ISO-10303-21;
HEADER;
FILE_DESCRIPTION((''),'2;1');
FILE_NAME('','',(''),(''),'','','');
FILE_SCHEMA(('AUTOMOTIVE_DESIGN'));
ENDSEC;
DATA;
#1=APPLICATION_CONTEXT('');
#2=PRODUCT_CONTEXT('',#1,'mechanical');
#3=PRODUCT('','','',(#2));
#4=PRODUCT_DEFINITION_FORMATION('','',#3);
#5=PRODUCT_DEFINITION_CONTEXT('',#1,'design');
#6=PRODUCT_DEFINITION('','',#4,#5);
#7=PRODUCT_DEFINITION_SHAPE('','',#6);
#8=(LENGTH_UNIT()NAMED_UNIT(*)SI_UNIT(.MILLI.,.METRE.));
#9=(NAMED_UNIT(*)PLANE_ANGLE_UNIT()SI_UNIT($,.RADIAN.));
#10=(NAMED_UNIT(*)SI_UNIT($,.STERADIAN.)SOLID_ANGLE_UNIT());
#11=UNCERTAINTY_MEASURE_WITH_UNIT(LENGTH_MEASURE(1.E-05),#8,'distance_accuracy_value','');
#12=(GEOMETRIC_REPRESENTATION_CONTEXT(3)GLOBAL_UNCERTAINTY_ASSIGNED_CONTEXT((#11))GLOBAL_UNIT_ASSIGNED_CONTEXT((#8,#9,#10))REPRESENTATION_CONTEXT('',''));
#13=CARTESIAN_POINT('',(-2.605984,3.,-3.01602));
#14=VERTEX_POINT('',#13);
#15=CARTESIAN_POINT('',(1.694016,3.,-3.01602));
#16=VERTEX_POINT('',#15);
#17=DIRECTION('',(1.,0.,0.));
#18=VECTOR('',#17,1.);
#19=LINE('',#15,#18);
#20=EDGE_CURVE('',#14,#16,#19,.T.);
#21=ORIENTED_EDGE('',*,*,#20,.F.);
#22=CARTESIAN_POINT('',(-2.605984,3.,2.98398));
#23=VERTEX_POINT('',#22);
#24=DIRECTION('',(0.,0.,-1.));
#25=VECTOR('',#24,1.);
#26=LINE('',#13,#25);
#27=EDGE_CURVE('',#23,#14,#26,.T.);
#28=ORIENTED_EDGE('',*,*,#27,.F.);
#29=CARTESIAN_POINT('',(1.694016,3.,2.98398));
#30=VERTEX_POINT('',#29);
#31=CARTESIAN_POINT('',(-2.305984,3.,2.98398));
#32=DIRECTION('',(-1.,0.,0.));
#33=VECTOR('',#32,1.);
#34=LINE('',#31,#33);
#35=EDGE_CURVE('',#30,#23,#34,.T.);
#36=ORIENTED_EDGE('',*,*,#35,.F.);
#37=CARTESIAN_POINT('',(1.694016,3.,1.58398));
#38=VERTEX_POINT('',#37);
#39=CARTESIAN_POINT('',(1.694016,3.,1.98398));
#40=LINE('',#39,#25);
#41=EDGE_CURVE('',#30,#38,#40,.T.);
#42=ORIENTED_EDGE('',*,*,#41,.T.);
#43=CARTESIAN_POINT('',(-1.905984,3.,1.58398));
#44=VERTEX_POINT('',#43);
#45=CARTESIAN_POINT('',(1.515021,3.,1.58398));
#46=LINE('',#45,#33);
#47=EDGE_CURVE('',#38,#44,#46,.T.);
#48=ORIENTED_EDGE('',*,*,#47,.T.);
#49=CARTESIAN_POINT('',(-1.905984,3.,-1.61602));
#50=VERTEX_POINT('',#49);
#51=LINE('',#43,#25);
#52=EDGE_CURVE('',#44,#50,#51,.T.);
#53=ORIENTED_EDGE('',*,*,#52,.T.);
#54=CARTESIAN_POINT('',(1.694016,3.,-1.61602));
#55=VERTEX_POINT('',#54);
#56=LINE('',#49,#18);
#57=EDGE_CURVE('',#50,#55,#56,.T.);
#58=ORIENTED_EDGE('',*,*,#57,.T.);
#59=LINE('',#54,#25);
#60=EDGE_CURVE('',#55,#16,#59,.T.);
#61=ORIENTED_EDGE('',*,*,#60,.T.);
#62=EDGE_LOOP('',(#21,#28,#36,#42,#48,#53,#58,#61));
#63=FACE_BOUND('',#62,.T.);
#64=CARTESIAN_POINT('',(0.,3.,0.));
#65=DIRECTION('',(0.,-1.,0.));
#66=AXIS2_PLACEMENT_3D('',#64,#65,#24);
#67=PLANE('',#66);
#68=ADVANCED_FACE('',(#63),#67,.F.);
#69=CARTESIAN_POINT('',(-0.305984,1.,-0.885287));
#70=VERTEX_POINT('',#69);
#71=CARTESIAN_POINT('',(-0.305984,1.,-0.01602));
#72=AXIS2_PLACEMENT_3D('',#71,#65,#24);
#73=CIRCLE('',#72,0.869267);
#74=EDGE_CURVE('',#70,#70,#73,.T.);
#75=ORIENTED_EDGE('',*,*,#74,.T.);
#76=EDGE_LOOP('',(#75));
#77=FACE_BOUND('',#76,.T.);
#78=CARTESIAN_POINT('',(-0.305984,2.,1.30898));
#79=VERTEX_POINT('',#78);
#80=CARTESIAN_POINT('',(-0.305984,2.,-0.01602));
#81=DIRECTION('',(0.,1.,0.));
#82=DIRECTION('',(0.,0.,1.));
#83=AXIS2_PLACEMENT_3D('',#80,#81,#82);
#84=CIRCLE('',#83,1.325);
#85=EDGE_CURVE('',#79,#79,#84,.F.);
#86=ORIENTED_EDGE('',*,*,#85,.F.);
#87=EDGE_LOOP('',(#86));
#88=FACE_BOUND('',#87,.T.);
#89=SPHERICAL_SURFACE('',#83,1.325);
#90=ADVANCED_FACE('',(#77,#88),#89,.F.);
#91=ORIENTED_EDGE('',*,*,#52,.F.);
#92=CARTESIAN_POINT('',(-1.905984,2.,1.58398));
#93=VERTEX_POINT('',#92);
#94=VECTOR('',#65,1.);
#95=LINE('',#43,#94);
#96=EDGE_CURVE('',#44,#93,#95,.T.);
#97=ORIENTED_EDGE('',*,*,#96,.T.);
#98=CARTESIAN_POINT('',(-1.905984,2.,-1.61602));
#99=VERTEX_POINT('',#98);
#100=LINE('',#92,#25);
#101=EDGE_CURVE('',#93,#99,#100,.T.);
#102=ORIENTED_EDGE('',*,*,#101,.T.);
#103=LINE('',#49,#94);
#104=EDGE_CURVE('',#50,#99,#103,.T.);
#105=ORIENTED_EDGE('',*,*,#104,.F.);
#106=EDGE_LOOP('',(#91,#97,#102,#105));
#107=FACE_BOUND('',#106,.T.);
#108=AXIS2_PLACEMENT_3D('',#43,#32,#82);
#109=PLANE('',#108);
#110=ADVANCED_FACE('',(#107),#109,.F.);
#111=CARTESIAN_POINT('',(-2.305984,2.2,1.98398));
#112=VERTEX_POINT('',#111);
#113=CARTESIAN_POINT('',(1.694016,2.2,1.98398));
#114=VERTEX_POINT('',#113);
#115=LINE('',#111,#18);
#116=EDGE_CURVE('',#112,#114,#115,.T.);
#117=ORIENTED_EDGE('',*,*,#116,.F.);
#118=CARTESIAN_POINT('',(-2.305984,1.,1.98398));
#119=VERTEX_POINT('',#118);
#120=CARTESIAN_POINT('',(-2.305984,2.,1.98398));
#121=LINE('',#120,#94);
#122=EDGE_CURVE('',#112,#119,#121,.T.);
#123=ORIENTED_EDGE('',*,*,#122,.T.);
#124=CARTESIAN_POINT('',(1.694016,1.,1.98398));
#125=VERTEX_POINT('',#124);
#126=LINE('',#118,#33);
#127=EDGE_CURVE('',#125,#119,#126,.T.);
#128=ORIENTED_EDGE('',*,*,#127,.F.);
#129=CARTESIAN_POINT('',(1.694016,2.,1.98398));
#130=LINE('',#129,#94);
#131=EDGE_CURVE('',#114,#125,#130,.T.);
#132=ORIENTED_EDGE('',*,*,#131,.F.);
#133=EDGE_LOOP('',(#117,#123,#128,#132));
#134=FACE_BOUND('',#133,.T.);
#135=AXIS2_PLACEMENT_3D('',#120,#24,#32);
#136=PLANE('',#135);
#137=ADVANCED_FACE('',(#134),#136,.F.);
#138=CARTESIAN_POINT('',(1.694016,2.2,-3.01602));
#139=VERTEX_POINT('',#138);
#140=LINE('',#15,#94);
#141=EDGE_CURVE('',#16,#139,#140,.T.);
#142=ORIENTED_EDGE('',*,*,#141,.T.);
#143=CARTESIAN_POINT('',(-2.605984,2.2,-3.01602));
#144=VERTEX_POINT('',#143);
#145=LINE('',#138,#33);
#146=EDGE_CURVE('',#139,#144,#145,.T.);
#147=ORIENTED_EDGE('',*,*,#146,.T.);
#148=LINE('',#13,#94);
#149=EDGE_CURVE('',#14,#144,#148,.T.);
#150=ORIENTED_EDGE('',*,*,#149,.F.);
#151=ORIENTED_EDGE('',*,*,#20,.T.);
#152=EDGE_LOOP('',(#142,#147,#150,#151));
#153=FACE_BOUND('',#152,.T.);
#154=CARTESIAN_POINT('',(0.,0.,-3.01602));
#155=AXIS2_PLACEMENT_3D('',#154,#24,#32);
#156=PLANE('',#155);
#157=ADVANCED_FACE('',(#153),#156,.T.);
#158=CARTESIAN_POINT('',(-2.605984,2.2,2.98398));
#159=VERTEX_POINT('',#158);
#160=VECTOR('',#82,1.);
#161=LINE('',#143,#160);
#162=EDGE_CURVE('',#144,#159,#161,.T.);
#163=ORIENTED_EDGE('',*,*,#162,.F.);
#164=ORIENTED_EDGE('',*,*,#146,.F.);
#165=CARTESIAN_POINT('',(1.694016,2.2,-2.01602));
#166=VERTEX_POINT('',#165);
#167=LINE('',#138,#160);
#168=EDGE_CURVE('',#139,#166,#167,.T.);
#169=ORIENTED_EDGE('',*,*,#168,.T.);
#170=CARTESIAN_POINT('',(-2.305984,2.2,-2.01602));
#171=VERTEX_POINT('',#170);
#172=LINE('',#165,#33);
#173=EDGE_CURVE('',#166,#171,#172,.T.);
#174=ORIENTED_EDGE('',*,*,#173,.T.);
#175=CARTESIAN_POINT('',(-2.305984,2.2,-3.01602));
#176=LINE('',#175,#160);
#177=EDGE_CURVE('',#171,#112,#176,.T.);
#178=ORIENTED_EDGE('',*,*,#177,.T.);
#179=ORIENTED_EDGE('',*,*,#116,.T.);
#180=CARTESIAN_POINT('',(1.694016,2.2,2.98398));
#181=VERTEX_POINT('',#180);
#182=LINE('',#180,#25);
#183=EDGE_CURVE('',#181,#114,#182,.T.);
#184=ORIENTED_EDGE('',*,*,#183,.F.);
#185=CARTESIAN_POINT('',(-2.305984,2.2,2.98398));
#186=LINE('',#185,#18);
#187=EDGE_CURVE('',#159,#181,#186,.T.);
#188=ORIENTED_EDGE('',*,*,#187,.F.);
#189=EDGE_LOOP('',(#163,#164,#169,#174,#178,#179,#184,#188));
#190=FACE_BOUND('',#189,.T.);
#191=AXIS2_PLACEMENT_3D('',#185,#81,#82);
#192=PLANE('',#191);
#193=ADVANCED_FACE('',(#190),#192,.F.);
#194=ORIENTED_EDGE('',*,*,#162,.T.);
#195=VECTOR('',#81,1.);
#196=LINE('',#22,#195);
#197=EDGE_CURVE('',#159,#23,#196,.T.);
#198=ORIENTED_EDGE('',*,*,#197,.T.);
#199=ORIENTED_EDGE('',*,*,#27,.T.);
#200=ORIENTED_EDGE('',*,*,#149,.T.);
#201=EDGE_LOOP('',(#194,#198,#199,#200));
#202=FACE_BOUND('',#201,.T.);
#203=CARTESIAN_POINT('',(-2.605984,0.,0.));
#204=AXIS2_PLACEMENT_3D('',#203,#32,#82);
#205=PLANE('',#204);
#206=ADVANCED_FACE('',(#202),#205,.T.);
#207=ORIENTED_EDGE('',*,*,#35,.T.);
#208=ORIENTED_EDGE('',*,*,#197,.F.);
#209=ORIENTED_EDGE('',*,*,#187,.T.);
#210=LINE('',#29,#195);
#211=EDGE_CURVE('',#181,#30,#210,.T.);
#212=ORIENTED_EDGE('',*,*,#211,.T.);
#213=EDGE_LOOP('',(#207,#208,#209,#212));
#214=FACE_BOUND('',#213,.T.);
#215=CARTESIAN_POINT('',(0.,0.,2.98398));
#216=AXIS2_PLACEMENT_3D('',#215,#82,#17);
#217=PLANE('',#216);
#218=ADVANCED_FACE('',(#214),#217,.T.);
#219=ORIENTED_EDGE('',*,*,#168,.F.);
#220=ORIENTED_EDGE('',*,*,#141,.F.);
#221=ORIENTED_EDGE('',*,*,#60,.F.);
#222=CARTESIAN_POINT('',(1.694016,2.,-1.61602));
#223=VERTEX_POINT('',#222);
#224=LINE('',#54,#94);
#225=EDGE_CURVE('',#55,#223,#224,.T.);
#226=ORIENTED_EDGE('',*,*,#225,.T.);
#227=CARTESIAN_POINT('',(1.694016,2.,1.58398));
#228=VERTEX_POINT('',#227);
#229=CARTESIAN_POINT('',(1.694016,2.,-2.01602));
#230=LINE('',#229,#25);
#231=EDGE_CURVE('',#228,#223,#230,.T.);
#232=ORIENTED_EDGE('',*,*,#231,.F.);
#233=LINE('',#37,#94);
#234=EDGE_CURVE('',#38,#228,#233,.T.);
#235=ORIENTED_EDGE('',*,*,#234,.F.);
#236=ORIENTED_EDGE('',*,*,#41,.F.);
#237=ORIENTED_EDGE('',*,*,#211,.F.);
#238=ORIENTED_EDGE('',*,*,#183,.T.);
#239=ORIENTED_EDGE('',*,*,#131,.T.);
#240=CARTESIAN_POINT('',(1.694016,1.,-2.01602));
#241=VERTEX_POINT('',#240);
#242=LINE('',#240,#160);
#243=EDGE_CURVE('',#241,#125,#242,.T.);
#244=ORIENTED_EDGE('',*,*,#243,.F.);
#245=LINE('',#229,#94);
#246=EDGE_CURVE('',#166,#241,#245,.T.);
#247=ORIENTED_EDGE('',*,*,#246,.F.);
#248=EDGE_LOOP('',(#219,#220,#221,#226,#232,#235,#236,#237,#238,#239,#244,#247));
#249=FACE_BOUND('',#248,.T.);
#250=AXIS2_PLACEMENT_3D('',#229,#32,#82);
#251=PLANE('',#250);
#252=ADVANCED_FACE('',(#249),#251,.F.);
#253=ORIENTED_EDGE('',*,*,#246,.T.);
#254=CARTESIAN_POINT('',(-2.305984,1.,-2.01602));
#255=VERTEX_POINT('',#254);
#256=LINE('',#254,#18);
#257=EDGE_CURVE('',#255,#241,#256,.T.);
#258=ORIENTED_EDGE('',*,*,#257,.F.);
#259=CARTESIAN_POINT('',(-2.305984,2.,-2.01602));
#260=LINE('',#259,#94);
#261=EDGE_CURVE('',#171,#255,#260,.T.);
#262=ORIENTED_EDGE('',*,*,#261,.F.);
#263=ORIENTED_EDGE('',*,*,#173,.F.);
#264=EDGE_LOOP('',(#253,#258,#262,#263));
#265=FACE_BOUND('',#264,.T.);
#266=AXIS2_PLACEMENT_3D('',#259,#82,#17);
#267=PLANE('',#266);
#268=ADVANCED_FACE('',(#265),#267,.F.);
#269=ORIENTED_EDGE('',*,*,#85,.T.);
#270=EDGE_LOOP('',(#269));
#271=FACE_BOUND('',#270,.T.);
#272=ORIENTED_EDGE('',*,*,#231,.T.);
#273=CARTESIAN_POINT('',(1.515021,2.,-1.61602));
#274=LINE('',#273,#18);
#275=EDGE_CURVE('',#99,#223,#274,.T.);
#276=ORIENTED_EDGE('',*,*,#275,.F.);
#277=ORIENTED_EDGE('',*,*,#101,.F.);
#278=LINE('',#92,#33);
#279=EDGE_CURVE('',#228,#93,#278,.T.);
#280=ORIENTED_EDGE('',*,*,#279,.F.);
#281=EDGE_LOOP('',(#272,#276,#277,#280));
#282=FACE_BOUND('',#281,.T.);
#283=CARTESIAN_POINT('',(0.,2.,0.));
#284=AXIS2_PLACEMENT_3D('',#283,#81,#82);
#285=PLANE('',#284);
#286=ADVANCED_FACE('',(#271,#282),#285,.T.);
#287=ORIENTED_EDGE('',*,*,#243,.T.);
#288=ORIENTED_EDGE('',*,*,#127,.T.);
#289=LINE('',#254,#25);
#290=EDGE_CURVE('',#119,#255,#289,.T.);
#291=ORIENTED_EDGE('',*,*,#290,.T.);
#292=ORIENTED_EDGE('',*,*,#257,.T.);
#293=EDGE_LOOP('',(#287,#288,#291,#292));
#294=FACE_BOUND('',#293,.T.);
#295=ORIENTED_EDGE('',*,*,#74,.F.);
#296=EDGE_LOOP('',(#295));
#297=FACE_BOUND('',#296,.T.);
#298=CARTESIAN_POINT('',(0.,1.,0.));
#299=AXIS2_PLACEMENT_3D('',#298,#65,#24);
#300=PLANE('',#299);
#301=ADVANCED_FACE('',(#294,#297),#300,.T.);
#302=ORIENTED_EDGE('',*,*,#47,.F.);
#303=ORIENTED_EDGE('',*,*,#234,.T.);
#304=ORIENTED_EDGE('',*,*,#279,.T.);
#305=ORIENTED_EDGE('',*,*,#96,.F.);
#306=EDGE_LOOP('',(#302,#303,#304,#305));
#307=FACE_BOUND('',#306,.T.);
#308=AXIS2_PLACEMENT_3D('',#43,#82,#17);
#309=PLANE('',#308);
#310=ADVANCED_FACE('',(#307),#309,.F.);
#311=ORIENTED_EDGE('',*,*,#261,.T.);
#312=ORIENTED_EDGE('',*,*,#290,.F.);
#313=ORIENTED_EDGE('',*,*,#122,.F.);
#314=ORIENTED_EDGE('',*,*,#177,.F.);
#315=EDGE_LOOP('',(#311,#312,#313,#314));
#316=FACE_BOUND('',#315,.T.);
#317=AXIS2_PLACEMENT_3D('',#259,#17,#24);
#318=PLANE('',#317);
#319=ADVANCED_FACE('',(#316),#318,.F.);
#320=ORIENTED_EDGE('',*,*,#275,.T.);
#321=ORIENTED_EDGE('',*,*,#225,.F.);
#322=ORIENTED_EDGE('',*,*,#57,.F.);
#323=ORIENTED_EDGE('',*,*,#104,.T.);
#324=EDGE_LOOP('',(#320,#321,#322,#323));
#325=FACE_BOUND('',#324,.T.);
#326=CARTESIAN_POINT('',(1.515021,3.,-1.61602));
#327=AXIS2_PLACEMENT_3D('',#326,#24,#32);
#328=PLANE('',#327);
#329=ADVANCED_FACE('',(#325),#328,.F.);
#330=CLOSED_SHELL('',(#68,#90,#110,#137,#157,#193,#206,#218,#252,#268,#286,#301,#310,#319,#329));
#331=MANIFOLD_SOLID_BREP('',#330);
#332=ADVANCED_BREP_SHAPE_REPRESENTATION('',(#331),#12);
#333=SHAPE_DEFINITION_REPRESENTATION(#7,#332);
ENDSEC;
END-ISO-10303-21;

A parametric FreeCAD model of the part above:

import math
import FreeCAD as App
import Part
import Sketcher


def add_polygon(sketch, points):
    """Adds a closed chain of lines whose ends are joined by coincident constraints."""
    first, n = sketch.GeometryCount, len(points)
    for a, b in zip(points, points[1:] + points[:1]):
        sketch.addGeometry(Part.LineSegment(App.Vector(*a, 0), App.Vector(*b, 0)), False)
    for i in range(n):
        sketch.addConstraint(Sketcher.Constraint("Coincident", first + i, 2, first + (i + 1) % n, 1))

doc = App.newDocument("Part")
params = doc.addObject("Spreadsheet::Sheet", "Params")
for row, (alias, value) in enumerate([
    ("sketch1_width", "4 mm"),
    ("pad1_length", "2 mm"),
    ("groove_angle", "360 deg"),
    ("pocket1_length", "1 mm"),
    ("sketch4_width", "4 mm"),
    ("sketch4_width2", "3.6 mm"),
    ("sketch4_height", "3.2 mm"),
    ("pad2_length", "1 mm"),
    ("sketch5_width", "4 mm"),
    ("sketch5_height", "0.8 mm"),
    ("pad3_length", "1 mm"),
    ("sketch6_width", "4 mm"),
    ("sketch6_height", "0.8 mm"),
    ("pad4_length", "1 mm"),
    ("sketch7_height", "6 mm"),
    ("sketch7_width", "0.8 mm"),
    ("pad5_length", "0.3 mm"),
], start=1):
    params.set(f"A{row}", alias)
    params.set(f"B{row}", "=" + value)
    params.setAlias(f"B{row}", alias)

body = doc.addObject("PartDesign::Body", "Body")

# Sketch on XZ plane
sketch1 = body.newObject("Sketcher::SketchObject", "Sketch")
sketch1.AttachmentSupport = (doc.getObject("XZ_Plane"), [""])
sketch1.MapMode = "FlatFace"
add_polygon(sketch1, [(-2.3, -2), (-2.3, 2), (1.7, 2), (1.7, -2)])  # lines 0-3
sketch1.addConstraint(Sketcher.Constraint("Vertical", 0))
sketch1.addConstraint(Sketcher.Constraint("Horizontal", 1))
sketch1.addConstraint(Sketcher.Constraint("Vertical", 2))
sketch1.addConstraint(Sketcher.Constraint("Horizontal", 3))
sketch1.addConstraint(Sketcher.Constraint("Equal", 3, 0))
sketch1.addConstraint(Sketcher.Constraint("DistanceX", 1, 1, 1, 2, 4.0))
sketch1.addConstraint(Sketcher.Constraint("DistanceY", -1, 1, 0, 2, 1.98398))
sketch1.addConstraint(Sketcher.Constraint("DistanceX", 0, 2, -1, 1, 2.305984))
sketch1.setExpression("Constraints[9]", "Params.sketch1_width")
pad1 = body.newObject("PartDesign::Pad", "Pad")
pad1.Profile = sketch1
pad1.setExpression("Length", "Params.pad1_length")
pad1.Reversed = True

# Sketch on XZ plane
sketch2 = body.newObject("Sketcher::SketchObject", "Sketch001")
sketch2.AttachmentSupport = (doc.getObject("XZ_Plane"), [""])
sketch2.MapMode = "FlatFace"
sketch2.AttachmentOffset = App.Placement(App.Vector(0, 0, -2), App.Rotation())
sketch2.addGeometry(Part.LineSegment(App.Vector(-0.3, 1.3, 0), App.Vector(-0.3, -1.3, 0)), False)
sketch2.addGeometry(Part.ArcOfCircle(Part.Circle(App.Vector(-0.3, 0, 0), App.Vector(0, 0, 1), 1.3), math.radians(90), math.radians(270)), False)
sketch2.addGeometry(Part.LineSegment(App.Vector(-0.3, 1.3, 0), App.Vector(-0.3, -1.3, 0)), True)  # axis
sketch2.addConstraint(Sketcher.Constraint("Coincident", 0, 1, 1, 1))
sketch2.addConstraint(Sketcher.Constraint("Coincident", 1, 2, 0, 2))
sketch2.addConstraint(Sketcher.Constraint("Vertical", 0))
sketch2.addConstraint(Sketcher.Constraint("Vertical", 2))
sketch2.addConstraint(Sketcher.Constraint("Coincident", 2, 1, 0, 1))
sketch2.addConstraint(Sketcher.Constraint("Vertical", 1, 3, 0, 1))
sketch2.addConstraint(Sketcher.Constraint("Equal", 0, 2))
sketch2.addConstraint(Sketcher.Constraint("Radius", 1, 1.325))
sketch2.addConstraint(Sketcher.Constraint("DistanceY", 1, 3, -1, 1, 0.01602))
sketch2.addConstraint(Sketcher.Constraint("DistanceX", 1, 3, -1, 1, 0.305984))
groove = body.newObject("PartDesign::Groove", "Groove")
groove.Profile = sketch2
groove.ReferenceAxis = (sketch2, ["Axis0"])
groove.setExpression("Angle", "Params.groove_angle")

# Sketch on XZ plane
sketch3 = body.newObject("Sketcher::SketchObject", "Sketch002")
sketch3.AttachmentSupport = (doc.getObject("XZ_Plane"), [""])
sketch3.MapMode = "FlatFace"
add_polygon(sketch3, [(-4.7, 2.6), (-4.7, -2.2), (2.3, -2.2), (2.3, 2.6)])  # lines 0-3
sketch3.addConstraint(Sketcher.Constraint("Vertical", 0))
sketch3.addConstraint(Sketcher.Constraint("Horizontal", 1))
sketch3.addConstraint(Sketcher.Constraint("Vertical", 2))
sketch3.addConstraint(Sketcher.Constraint("Horizontal", 3))
sketch3.addConstraint(Sketcher.Constraint("DistanceX", 1, 1, 1, 2, 6.995739))
sketch3.addConstraint(Sketcher.Constraint("DistanceY", 0, 2, 0, 1, 4.795831))
sketch3.addConstraint(Sketcher.Constraint("DistanceY", 0, 2, -1, 1, 2.171708))
sketch3.addConstraint(Sketcher.Constraint("DistanceX", 0, 2, -1, 1, 4.717305))
pocket1 = body.newObject("PartDesign::Pocket", "Pocket")
pocket1.Profile = sketch3
pocket1.setExpression("Length", "Params.pocket1_length")

# Sketch on XZ plane
sketch4 = body.newObject("Sketcher::SketchObject", "Sketch003")
sketch4.AttachmentSupport = (doc.getObject("XZ_Plane"), [""])
sketch4.MapMode = "FlatFace"
sketch4.AttachmentOffset = App.Placement(App.Vector(0, 0, -2), App.Rotation())
add_polygon(sketch4, [(1.69, 1.58), (-1.91, 1.58), (-1.91, -1.62), (1.69, -1.62), (1.69, -2.02), (-2.31, -2.02), (-2.31, 1.98), (1.69, 1.98)])  # lines 0-7
sketch4.addConstraint(Sketcher.Constraint("Horizontal", 0))
sketch4.addConstraint(Sketcher.Constraint("Vertical", 1))
sketch4.addConstraint(Sketcher.Constraint("Horizontal", 2))
sketch4.addConstraint(Sketcher.Constraint("Vertical", 3))
sketch4.addConstraint(Sketcher.Constraint("Horizontal", 4))
sketch4.addConstraint(Sketcher.Constraint("Vertical", 5))
sketch4.addConstraint(Sketcher.Constraint("Horizontal", 6))
sketch4.addConstraint(Sketcher.Constraint("Vertical", 7))
sketch4.addConstraint(Sketcher.Constraint("Vertical", 3, 2, 6, 2))
sketch4.addConstraint(Sketcher.Constraint("Equal", 6, 5))
sketch4.addConstraint(Sketcher.Constraint("Equal", 3, 7))
sketch4.addConstraint(Sketcher.Constraint("DistanceX", 4, 2, 4, 1, 4.0))
sketch4.addConstraint(Sketcher.Constraint("DistanceX", 0, 2, 0, 1, 3.6))
sketch4.addConstraint(Sketcher.Constraint("DistanceY", 1, 2, 1, 1, 3.2))
sketch4.addConstraint(Sketcher.Constraint("DistanceY", -1, 1, 0, 2, 1.58398))
sketch4.addConstraint(Sketcher.Constraint("DistanceX", 0, 2, -1, 1, 1.905984))
sketch4.setExpression("Constraints[19]", "Params.sketch4_width")
sketch4.setExpression("Constraints[20]", "Params.sketch4_width2")
sketch4.setExpression("Constraints[21]", "Params.sketch4_height")
pad2 = body.newObject("PartDesign::Pad", "Pad001")
pad2.Profile = sketch4
pad2.setExpression("Length", "Params.pad2_length")
pad2.Reversed = True

# Sketch on XY plane
sketch5 = body.newObject("Sketcher::SketchObject", "Sketch004")
sketch5.AttachmentSupport = (doc.getObject("XY_Plane"), [""])
sketch5.MapMode = "FlatFace"
sketch5.AttachmentOffset = App.Placement(App.Vector(0, 0, 1.98398), App.Rotation())
add_polygon(sketch5, [(-2.3, 3), (-2.3, 2.2), (1.7, 2.2), (1.7, 3)])  # lines 0-3
sketch5.addConstraint(Sketcher.Constraint("Vertical", 0))
sketch5.addConstraint(Sketcher.Constraint("Horizontal", 1))
sketch5.addConstraint(Sketcher.Constraint("Vertical", 2))
sketch5.addConstraint(Sketcher.Constraint("Horizontal", 3))
sketch5.addConstraint(Sketcher.Constraint("DistanceX", 1, 1, 1, 2, 4.0))
sketch5.addConstraint(Sketcher.Constraint("DistanceY", 0, 2, 0, 1, 0.8))
sketch5.addConstraint(Sketcher.Constraint("DistanceY", -1, 1, 2, 2, 3.0))
sketch5.addConstraint(Sketcher.Constraint("DistanceX", 0, 2, -1, 1, 2.305984))
sketch5.setExpression("Constraints[8]", "Params.sketch5_width")
sketch5.setExpression("Constraints[9]", "Params.sketch5_height")
pad3 = body.newObject("PartDesign::Pad", "Pad002")
pad3.Profile = sketch5
pad3.setExpression("Length", "Params.pad3_length")

# Sketch on XY plane
sketch6 = body.newObject("Sketcher::SketchObject", "Sketch005")
sketch6.AttachmentSupport = (doc.getObject("XY_Plane"), [""])
sketch6.MapMode = "FlatFace"
sketch6.AttachmentOffset = App.Placement(App.Vector(0, 0, -2.01602), App.Rotation())
add_polygon(sketch6, [(1.7, 3), (1.7, 2.2), (-2.3, 2.2), (-2.3, 3)])  # lines 0-3
sketch6.addConstraint(Sketcher.Constraint("Vertical", 0))
sketch6.addConstraint(Sketcher.Constraint("Horizontal", 1))
sketch6.addConstraint(Sketcher.Constraint("Vertical", 2))
sketch6.addConstraint(Sketcher.Constraint("Horizontal", 3))
sketch6.addConstraint(Sketcher.Constraint("DistanceX", 1, 2, 1, 1, 4.0))
sketch6.addConstraint(Sketcher.Constraint("DistanceY", 0, 2, 0, 1, 0.8))
sketch6.addConstraint(Sketcher.Constraint("DistanceY", -1, 1, 2, 2, 3.0))
sketch6.addConstraint(Sketcher.Constraint("DistanceX", -1, 1, 0, 2, 1.694016))
sketch6.setExpression("Constraints[8]", "Params.sketch6_width")
sketch6.setExpression("Constraints[9]", "Params.sketch6_height")
pad4 = body.newObject("PartDesign::Pad", "Pad003")
pad4.Profile = sketch6
pad4.setExpression("Length", "Params.pad4_length")
pad4.Reversed = True

# Sketch on YZ plane
sketch7 = body.newObject("Sketcher::SketchObject", "Sketch006")
sketch7.AttachmentSupport = (doc.getObject("YZ_Plane"), [""])
sketch7.MapMode = "FlatFace"
sketch7.AttachmentOffset = App.Placement(App.Vector(0, 0, -2.305984), App.Rotation())
add_polygon(sketch7, [(3, -3), (2.2, -3), (2.2, 3), (3, 3)])  # lines 0-3
sketch7.addConstraint(Sketcher.Constraint("Horizontal", 0))
sketch7.addConstraint(Sketcher.Constraint("Vertical", 1))
sketch7.addConstraint(Sketcher.Constraint("Horizontal", 2))
sketch7.addConstraint(Sketcher.Constraint("Vertical", 3))
sketch7.addConstraint(Sketcher.Constraint("DistanceY", 1, 1, 1, 2, 6.0))
sketch7.addConstraint(Sketcher.Constraint("DistanceX", 0, 2, 0, 1, 0.8))
sketch7.addConstraint(Sketcher.Constraint("DistanceX", -1, 1, 2, 2, 3.0))
sketch7.addConstraint(Sketcher.Constraint("DistanceY", 0, 2, -1, 1, 3.01602))
sketch7.setExpression("Constraints[8]", "Params.sketch7_height")
sketch7.setExpression("Constraints[9]", "Params.sketch7_width")
pad5 = body.newObject("PartDesign::Pad", "Pad004")
pad5.Profile = sketch7
pad5.setExpression("Length", "Params.pad5_length")
pad5.Reversed = True

doc.recompute()
